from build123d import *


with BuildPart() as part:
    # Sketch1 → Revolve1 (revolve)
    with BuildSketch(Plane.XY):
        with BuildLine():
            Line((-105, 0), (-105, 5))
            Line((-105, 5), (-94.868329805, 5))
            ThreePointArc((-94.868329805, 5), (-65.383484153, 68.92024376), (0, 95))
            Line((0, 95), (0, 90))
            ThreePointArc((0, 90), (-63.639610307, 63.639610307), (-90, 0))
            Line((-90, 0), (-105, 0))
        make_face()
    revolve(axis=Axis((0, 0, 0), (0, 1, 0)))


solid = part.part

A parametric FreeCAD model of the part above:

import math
import FreeCAD as App
import Part
import Sketcher
from FreeCAD import Vector
Q = App.Units.Quantity

doc = App.newDocument("Part")
body = doc.addObject("PartDesign::Body", "Body")

# Sketch on XY plane
sketch1 = body.newObject("Sketcher::SketchObject", "Sketch")
sketch1.AttachmentSupport = (doc.getObject("XY_Plane"), [""])
sketch1.MapMode = "FlatFace"
sketch1.addGeometry([
    Part.LineSegment(Vector(-105, 5, 0), Vector(-105, 0, 0)),  # 0
    Part.LineSegment(Vector(-105, 0, 0), Vector(-90, 0, 0)),  # 1
    Part.ArcOfCircle(Part.Circle(Vector(0, 0, 0), Vector(0, 0, 1), 90), math.radians(90), math.radians(180)),  # 2
    Part.LineSegment(Vector(0, 90, 0), Vector(0, 95, 0)),  # 3
    Part.ArcOfCircle(Part.Circle(Vector(0, 0, 0), Vector(0, 0, 1), 95), math.radians(90), math.radians(176.983039)),  # 4
    Part.LineSegment(Vector(-94.86833, 5, 0), Vector(-105, 5, 0)),  # 5
], False)
sketch1.addConstraint([
    Sketcher.Constraint("Coincident", 0, 2, 1, 1),
    Sketcher.Constraint("Coincident", 1, 2, 2, 2),
    Sketcher.Constraint("Coincident", 2, 1, 3, 1),
    Sketcher.Constraint("Coincident", 3, 2, 4, 1),
    Sketcher.Constraint("Coincident", 4, 2, 5, 1),
    Sketcher.Constraint("Coincident", 5, 2, 0, 1),
    Sketcher.Constraint("Vertical", 0),
    Sketcher.Constraint("Horizontal", 1),
    Sketcher.Constraint("Vertical", 3),
    Sketcher.Constraint("Horizontal", 5),
    Sketcher.Constraint("Coincident", 2, 3, -1, 1),
    Sketcher.Constraint("Coincident", 4, 3, -1, 1),
    Sketcher.Constraint("PointOnObject", 0, 2, -1),
    Sketcher.Constraint("PointOnObject", 2, 1, -2),
    Sketcher.Constraint("Equal", 0, 3),
    Sketcher.Constraint("Radius", 2, Q("90 mm")),
    Sketcher.Constraint("Radius", 4, Q("95 mm")),
    Sketcher.Constraint("DistanceX", 1, 1, 1, 2, Q("15 mm")),
])
revolution = body.newObject("PartDesign::Revolution", "Revolution")
revolution.Profile = sketch1
revolution.ReferenceAxis = (sketch1, ["V_Axis"])
revolution.Angle = 360

doc.recompute()
